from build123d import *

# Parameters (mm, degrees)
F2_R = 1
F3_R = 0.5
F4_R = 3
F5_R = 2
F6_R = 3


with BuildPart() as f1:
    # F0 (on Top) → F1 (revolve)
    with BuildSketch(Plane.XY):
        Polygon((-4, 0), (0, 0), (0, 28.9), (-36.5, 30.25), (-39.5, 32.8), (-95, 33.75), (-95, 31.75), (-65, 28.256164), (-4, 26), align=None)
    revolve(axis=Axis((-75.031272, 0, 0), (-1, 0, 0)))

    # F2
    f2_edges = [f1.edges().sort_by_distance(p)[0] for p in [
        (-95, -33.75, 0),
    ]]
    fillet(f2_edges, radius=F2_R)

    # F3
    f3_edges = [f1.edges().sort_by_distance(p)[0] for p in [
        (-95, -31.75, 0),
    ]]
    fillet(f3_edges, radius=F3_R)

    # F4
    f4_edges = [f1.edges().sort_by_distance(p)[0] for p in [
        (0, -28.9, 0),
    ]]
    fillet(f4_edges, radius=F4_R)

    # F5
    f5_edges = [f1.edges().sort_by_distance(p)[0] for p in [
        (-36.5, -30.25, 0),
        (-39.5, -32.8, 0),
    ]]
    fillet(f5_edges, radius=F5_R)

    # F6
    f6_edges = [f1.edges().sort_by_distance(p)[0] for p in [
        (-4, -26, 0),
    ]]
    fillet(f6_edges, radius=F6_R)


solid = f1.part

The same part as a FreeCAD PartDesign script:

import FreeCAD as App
import Part
import Sketcher


def edges_at(feature, points):
    """Names of the edges that pass closest to the given points."""
    edges = feature.Shape.Edges
    near = lambda p: min(range(len(edges)), key=lambda i: edges[i].distToShape(Part.Vertex(*p))[0])
    return sorted({f"Edge{near(p) + 1}" for p in points})

doc = App.newDocument("Part")
params = doc.addObject("Spreadsheet::Sheet", "Params")
for row, (alias, value) in enumerate([
    ("sketch1_width", "4 mm"),
    ("sketch1_height", "2 mm"),
    ("sketch1_height2", "26 mm"),
    ("sketch1_height3", "28.9 mm"),
    ("revolution_angle", "360 deg"),
    ("fillet_radius", "1 mm"),
    ("fillet2_radius", "0.5 mm"),
    ("fillet3_radius", "3 mm"),
    ("fillet4_radius", "2 mm"),
    ("fillet5_radius", "3 mm"),
], start=1):
    params.set(f"A{row}", alias)
    params.set(f"B{row}", "=" + value)
    params.setAlias(f"B{row}", alias)

body = doc.addObject("PartDesign::Body", "Body")

# Sketch on XY plane
sketch1 = body.newObject("Sketcher::SketchObject", "Sketch")
sketch1.AttachmentSupport = (doc.getObject("XY_Plane"), [""])
sketch1.MapMode = "FlatFace"
sketch1.addGeometry(Part.LineSegment(App.Vector(-4, 0, 0), App.Vector(0, 0, 0)), False)
sketch1.addGeometry(Part.LineSegment(App.Vector(0, 0, 0), App.Vector(0, 28.9, 0)), False)
sketch1.addGeometry(Part.LineSegment(App.Vector(0, 28.9, 0), App.Vector(-36.5, 30.25, 0)), False)
sketch1.addGeometry(Part.LineSegment(App.Vector(-36.5, 30.25, 0), App.Vector(-39.5, 32.8, 0)), False)
sketch1.addGeometry(Part.LineSegment(App.Vector(-39.5, 32.8, 0), App.Vector(-95, 33.75, 0)), False)
sketch1.addGeometry(Part.LineSegment(App.Vector(-95, 33.75, 0), App.Vector(-95, 31.75, 0)), False)
sketch1.addGeometry(Part.LineSegment(App.Vector(-95, 31.75, 0), App.Vector(-65, 28.256164, 0)), False)
sketch1.addGeometry(Part.LineSegment(App.Vector(-65, 28.256164, 0), App.Vector(-4, 26, 0)), False)
sketch1.addGeometry(Part.LineSegment(App.Vector(-4, 26, 0), App.Vector(-4, 0, 0)), False)
sketch1.addConstraint(Sketcher.Constraint("Coincident", 0, 2, 1, 1))
sketch1.addConstraint(Sketcher.Constraint("Coincident", 1, 2, 2, 1))
sketch1.addConstraint(Sketcher.Constraint("Coincident", 2, 2, 3, 1))
sketch1.addConstraint(Sketcher.Constraint("Coincident", 3, 2, 4, 1))
sketch1.addConstraint(Sketcher.Constraint("Coincident", 4, 2, 5, 1))
sketch1.addConstraint(Sketcher.Constraint("Coincident", 5, 2, 6, 1))
sketch1.addConstraint(Sketcher.Constraint("Coincident", 6, 2, 7, 1))
sketch1.addConstraint(Sketcher.Constraint("Coincident", 7, 2, 8, 1))
sketch1.addConstraint(Sketcher.Constraint("Coincident", 8, 2, 0, 1))
sketch1.addConstraint(Sketcher.Constraint("Horizontal", 0))
sketch1.addConstraint(Sketcher.Constraint("Vertical", 1))
sketch1.addConstraint(Sketcher.Constraint("Vertical", 5))
sketch1.addConstraint(Sketcher.Constraint("Vertical", 8))
sketch1.addConstraint(Sketcher.Constraint("Coincident", 0, 2, -1, 1))
sketch1.addConstraint(Sketcher.Constraint("Parallel", 2, 7))
sketch1.addConstraint(Sketcher.Constraint("DistanceX", 0, 1, 0, 2, 4.0))
sketch1.addConstraint(Sketcher.Constraint("DistanceY", 5, 2, 5, 1, 2.0))
sketch1.addConstraint(Sketcher.Constraint("DistanceY", 8, 2, 8, 1, 26.0))
sketch1.addConstraint(Sketcher.Constraint("DistanceY", 1, 1, 1, 2, 28.9))
sketch1.addConstraint(Sketcher.Constraint("DistanceX", 4, 2, -1, 1, 95.0))
sketch1.addConstraint(Sketcher.Constraint("DistanceX", 6, 2, -1, 1, 65.0))
sketch1.addConstraint(Sketcher.Constraint("DistanceX", 3, 2, 2, 2, 3.0))
sketch1.addConstraint(Sketcher.Constraint("DistanceX", 2, 2, -1, 1, 36.5))
sketch1.addConstraint(Sketcher.Constraint("DistanceY", -1, 1, 3, 2, 32.8))
sketch1.addConstraint(Sketcher.Constraint("DistanceY", 2, 2, 4, 2, 3.5))
sketch1.addConstraint(Sketcher.Constraint("DistanceY", -1, 1, 2, 2, 30.25))
sketch1.setExpression("Constraints[15]", "Params.sketch1_width")
sketch1.setExpression("Constraints[16]", "Params.sketch1_height")
sketch1.setExpression("Constraints[17]", "Params.sketch1_height2")
sketch1.setExpression("Constraints[18]", "Params.sketch1_height3")
revolution = body.newObject("PartDesign::Revolution", "Revolution")
revolution.Profile = sketch1
revolution.ReferenceAxis = (sketch1, ["H_Axis"])
revolution.setExpression("Angle", "Params.revolution_angle")
doc.recompute()

fillet = body.newObject("PartDesign::Fillet", "Fillet")
fillet.Base = (revolution, edges_at(revolution, [(-95, -33.75, 0)]))
fillet.setExpression("Radius", "Params.fillet_radius")
doc.recompute()

fillet2 = body.newObject("PartDesign::Fillet", "Fillet001")
fillet2.Base = (fillet, edges_at(fillet, [(-95, -31.75, 0)]))
fillet2.setExpression("Radius", "Params.fillet2_radius")
doc.recompute()

fillet3 = body.newObject("PartDesign::Fillet", "Fillet002")
fillet3.Base = (fillet2, edges_at(fillet2, [(0, -28.9, 0)]))
fillet3.setExpression("Radius", "Params.fillet3_radius")
doc.recompute()

fillet4 = body.newObject("PartDesign::Fillet", "Fillet003")
fillet4.Base = (fillet3, edges_at(fillet3, [(-36.5, -30.25, 0), (-39.5, -32.8, 0)]))
fillet4.setExpression("Radius", "Params.fillet4_radius")
doc.recompute()

fillet5 = body.newObject("PartDesign::Fillet", "Fillet004")
fillet5.Base = (fillet4, edges_at(fillet4, [(-4, -26, 0)]))
fillet5.setExpression("Radius", "Params.fillet5_radius")

doc.recompute()
